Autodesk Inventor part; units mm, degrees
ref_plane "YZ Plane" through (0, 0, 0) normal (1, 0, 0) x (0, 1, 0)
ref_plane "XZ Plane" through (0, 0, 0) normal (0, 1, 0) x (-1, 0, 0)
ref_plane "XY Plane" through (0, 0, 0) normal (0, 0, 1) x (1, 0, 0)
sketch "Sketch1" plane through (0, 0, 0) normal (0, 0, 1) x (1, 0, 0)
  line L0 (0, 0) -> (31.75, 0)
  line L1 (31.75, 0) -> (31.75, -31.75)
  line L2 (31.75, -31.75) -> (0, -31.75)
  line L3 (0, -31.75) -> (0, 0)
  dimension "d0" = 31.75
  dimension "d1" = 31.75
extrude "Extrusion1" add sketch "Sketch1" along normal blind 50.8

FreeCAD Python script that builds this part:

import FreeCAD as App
import Part
import Sketcher
Q = App.Units.Quantity

doc = App.newDocument("Part")
params = doc.addObject("Spreadsheet::Sheet", "Params")
for row, (alias, value) in enumerate([
    ("sketch1_width", "1.25 in"),
    ("pad1_length", "2 in"),
], start=1):
    params.set(f"A{row}", alias)
    params.set(f"B{row}", "=" + value)
    params.setAlias(f"B{row}", alias)

body = doc.addObject("PartDesign::Body", "Body")

sketch1 = body.newObject("Sketcher::SketchObject", "Sketch")
sketch1.AttachmentSupport = (doc.getObject("XY_Plane"), [""])
sketch1.MapMode = "FlatFace"
sketch1.addGeometry([
    Part.LineSegment(App.Vector(32, 0, 0), App.Vector(0, 0, 0)),
    Part.LineSegment(App.Vector(0, 0, 0), App.Vector(0, -32, 0)),
    Part.LineSegment(App.Vector(0, -32, 0), App.Vector(32, -32, 0)),
    Part.LineSegment(App.Vector(32, -32, 0), App.Vector(32, 0, 0)),
], False)
sketch1.addConstraint([
    Sketcher.Constraint("Coincident", 0, 2, 1, 1),
    Sketcher.Constraint("Coincident", 1, 2, 2, 1),
    Sketcher.Constraint("Coincident", 2, 2, 3, 1),
    Sketcher.Constraint("Coincident", 3, 2, 0, 1),
    Sketcher.Constraint("Horizontal", 0),
    Sketcher.Constraint("Vertical", 1),
    Sketcher.Constraint("Horizontal", 2),
    Sketcher.Constraint("Vertical", 3),
    Sketcher.Constraint("Coincident", 0, 2, -1, 1),
    Sketcher.Constraint("Equal", 2, 1),
    Sketcher.Constraint("DistanceX", 0, 2, 0, 1, Q("1.25 in")),
])
sketch1.setExpression("Constraints[10]", "Params.sketch1_width")
pad1 = body.newObject("PartDesign::Pad", "Pad")
pad1.Profile = sketch1
pad1.setExpression("Length", "Params.pad1_length")

doc.recompute()
